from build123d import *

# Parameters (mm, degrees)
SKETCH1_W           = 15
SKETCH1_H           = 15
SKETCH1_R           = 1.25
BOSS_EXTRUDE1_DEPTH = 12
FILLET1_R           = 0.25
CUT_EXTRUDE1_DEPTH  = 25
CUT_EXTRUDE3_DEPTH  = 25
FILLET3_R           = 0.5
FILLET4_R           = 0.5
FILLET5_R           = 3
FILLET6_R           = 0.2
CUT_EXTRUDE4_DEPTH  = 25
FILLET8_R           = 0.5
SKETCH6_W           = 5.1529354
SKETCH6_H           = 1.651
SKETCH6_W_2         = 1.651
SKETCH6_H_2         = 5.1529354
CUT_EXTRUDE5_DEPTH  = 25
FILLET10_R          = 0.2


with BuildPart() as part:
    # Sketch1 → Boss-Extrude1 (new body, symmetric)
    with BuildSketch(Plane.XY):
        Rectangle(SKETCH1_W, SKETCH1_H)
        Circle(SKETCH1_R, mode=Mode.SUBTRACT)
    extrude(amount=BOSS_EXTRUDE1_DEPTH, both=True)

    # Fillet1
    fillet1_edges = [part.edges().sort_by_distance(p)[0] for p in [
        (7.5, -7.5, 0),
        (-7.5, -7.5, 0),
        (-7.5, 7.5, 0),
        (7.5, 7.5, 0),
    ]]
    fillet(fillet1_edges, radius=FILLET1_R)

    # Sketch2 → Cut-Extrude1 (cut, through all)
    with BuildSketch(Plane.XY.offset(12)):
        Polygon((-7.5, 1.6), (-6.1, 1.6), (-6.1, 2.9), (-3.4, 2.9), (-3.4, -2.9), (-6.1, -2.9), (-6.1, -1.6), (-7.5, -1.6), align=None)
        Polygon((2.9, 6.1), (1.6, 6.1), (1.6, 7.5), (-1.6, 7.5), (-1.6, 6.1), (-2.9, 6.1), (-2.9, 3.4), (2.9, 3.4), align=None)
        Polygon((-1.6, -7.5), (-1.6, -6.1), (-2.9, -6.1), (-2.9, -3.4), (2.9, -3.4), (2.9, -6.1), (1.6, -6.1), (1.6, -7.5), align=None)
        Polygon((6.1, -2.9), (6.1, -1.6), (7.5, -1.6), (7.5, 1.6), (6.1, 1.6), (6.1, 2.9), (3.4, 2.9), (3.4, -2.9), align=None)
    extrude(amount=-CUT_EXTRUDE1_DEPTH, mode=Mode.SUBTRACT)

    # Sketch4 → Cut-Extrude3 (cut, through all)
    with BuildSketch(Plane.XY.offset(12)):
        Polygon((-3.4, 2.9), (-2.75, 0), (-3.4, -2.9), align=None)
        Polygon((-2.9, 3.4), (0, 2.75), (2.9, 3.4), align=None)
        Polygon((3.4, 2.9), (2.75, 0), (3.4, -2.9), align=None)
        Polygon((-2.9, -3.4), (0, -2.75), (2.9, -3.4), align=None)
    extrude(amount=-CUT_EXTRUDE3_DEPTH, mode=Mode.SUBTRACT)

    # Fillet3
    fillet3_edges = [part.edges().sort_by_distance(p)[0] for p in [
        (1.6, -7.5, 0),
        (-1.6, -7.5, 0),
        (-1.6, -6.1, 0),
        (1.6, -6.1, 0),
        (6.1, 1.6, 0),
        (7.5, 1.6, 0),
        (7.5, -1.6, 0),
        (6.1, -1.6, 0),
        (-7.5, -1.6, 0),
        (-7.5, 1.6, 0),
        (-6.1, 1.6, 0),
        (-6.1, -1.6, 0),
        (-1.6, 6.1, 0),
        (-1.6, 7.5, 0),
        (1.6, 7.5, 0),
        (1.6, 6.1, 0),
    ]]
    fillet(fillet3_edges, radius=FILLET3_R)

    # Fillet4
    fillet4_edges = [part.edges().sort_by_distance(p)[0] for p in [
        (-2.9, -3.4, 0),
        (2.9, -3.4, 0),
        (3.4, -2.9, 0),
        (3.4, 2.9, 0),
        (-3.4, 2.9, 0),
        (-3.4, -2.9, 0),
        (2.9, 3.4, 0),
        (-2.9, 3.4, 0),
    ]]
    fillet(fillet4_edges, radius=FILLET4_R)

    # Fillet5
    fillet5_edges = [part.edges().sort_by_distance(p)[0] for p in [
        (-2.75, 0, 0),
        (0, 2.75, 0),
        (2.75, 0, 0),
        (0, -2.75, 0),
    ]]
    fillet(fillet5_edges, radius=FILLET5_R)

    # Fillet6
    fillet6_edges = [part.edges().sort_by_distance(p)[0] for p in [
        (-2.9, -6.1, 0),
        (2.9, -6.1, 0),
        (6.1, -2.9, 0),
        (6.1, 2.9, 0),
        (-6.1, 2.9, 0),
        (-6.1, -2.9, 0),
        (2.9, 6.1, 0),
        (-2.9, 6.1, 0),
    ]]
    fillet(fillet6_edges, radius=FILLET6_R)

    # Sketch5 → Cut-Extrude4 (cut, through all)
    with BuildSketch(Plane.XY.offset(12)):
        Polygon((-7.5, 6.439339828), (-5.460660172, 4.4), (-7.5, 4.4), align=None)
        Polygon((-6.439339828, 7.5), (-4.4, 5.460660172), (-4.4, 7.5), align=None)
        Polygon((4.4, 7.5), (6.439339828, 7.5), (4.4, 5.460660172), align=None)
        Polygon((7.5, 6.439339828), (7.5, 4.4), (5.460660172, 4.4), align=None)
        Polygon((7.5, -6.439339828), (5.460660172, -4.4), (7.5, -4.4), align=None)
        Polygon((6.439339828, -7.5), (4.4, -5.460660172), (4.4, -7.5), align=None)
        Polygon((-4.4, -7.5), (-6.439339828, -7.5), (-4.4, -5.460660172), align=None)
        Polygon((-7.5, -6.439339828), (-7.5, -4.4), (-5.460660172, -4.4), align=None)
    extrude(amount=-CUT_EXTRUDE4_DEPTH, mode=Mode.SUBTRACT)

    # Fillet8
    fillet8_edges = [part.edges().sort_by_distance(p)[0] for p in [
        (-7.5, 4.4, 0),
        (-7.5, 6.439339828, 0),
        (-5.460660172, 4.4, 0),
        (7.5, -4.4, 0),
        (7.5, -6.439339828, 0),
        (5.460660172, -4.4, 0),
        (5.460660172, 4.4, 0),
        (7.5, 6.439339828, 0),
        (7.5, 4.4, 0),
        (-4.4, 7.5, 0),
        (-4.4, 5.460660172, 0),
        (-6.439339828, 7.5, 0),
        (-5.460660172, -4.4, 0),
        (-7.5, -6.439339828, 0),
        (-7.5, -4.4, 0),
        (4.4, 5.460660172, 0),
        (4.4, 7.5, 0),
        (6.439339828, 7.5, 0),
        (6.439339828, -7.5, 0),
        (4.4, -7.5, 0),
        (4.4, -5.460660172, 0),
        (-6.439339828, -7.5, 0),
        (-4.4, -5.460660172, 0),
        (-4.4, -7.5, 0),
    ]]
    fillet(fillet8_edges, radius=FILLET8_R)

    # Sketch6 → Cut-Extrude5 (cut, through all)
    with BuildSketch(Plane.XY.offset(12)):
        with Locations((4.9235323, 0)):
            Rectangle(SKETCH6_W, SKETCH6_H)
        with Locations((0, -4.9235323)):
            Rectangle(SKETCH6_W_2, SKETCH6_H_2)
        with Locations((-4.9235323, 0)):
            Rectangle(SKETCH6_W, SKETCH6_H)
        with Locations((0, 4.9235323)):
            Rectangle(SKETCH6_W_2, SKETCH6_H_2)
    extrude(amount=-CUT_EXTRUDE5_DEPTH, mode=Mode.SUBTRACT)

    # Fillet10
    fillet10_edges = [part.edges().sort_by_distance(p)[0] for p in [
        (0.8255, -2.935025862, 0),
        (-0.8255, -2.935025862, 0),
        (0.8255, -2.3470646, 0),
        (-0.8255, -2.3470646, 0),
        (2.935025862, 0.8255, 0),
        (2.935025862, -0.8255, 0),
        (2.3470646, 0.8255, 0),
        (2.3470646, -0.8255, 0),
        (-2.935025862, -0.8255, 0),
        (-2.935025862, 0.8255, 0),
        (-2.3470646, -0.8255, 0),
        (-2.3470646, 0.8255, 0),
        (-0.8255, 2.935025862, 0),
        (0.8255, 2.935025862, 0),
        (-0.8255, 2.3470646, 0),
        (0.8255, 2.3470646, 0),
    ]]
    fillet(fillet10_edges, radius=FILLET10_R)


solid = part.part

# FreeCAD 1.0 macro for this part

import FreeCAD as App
import Part
import Sketcher


def edges_at(feature, points):
    """Names of the edges that pass closest to the given points."""
    edges = feature.Shape.Edges
    near = lambda p: min(range(len(edges)), key=lambda i: edges[i].distToShape(Part.Vertex(*p))[0])
    return sorted({f"Edge{near(p) + 1}" for p in points})

doc = App.newDocument("Part")
body = doc.addObject("PartDesign::Body", "Body")

# Sketch on XY plane
sketch1 = body.newObject("Sketcher::SketchObject", "Sketch")
sketch1.AttachmentSupport = (doc.getObject("XY_Plane"), [""])
sketch1.MapMode = "FlatFace"
sketch1.addGeometry([
    Part.LineSegment(App.Vector(-7.5, 7.5, 0), App.Vector(-7.5, -7.5, 0)),  # 0
    Part.LineSegment(App.Vector(-7.5, -7.5, 0), App.Vector(7.5, -7.5, 0)),  # 1
    Part.LineSegment(App.Vector(7.5, -7.5, 0), App.Vector(7.5, 7.5, 0)),  # 2
    Part.LineSegment(App.Vector(7.5, 7.5, 0), App.Vector(-7.5, 7.5, 0)),  # 3
    Part.Circle(App.Vector(0, 0, 0), App.Vector(0, 0, 1), 1.2),  # 4
], False)
sketch1.addConstraint([
    Sketcher.Constraint("Coincident", 0, 2, 1, 1),
    Sketcher.Constraint("Coincident", 1, 2, 2, 1),
    Sketcher.Constraint("Coincident", 2, 2, 3, 1),
    Sketcher.Constraint("Coincident", 3, 2, 0, 1),
    Sketcher.Constraint("Vertical", 0),
    Sketcher.Constraint("Horizontal", 1),
    Sketcher.Constraint("Vertical", 2),
    Sketcher.Constraint("Horizontal", 3),
    Sketcher.Constraint("Coincident", 4, 3, -1, 1),
    Sketcher.Constraint("Symmetric", 0, 2, 2, 2, -1, 1),
    Sketcher.Constraint("Equal", 3, 0),
    Sketcher.Constraint("Diameter", 4, 2.5),
    Sketcher.Constraint("DistanceX", 1, 1, 1, 2, 15.0),
])
pad1 = body.newObject("PartDesign::Pad", "Pad")
pad1.Profile = sketch1
pad1.Length = 24
pad1.Midplane = True
doc.recompute()

fillet = body.newObject("PartDesign::Fillet", "Fillet")
fillet.Base = (pad1, edges_at(pad1, [
    (7.5, -7.5, 0),
    (-7.5, -7.5, 0),
    (-7.5, 7.5, 0),
    (7.5, 7.5, 0),
]))
fillet.Radius = 0.25

# Sketch on XY plane
sketch2 = body.newObject("Sketcher::SketchObject", "Sketch001")
sketch2.AttachmentSupport = (doc.getObject("XY_Plane"), [""])
sketch2.MapMode = "FlatFace"
sketch2.AttachmentOffset = App.Placement(App.Vector(0, 0, 12), App.Rotation())
sketch2.addGeometry([
    Part.LineSegment(App.Vector(-6.1, 1.6, 0), App.Vector(-7.5, 1.6, 0)),  # 0
    Part.LineSegment(App.Vector(-7.5, 1.6, 0), App.Vector(-7.5, -1.6, 0)),  # 1
    Part.LineSegment(App.Vector(-7.5, -1.6, 0), App.Vector(-6.1, -1.6, 0)),  # 2
    Part.LineSegment(App.Vector(-6.1, -1.6, 0), App.Vector(-6.1, -2.9, 0)),  # 3
    Part.LineSegment(App.Vector(-6.1, -2.9, 0), App.Vector(-3.4, -2.9, 0)),  # 4
    Part.LineSegment(App.Vector(-3.4, -2.9, 0), App.Vector(-3.4, 2.9, 0)),  # 5
    Part.LineSegment(App.Vector(-3.4, 2.9, 0), App.Vector(-6.1, 2.9, 0)),  # 6
    Part.LineSegment(App.Vector(-6.1, 2.9, 0), App.Vector(-6.1, 1.6, 0)),  # 7
    Part.LineSegment(App.Vector(2.9, 6.1, 0), App.Vector(1.6, 6.1, 0)),  # 8
    Part.LineSegment(App.Vector(1.6, 6.1, 0), App.Vector(1.6, 7.5, 0)),  # 9
    Part.LineSegment(App.Vector(1.6, 7.5, 0), App.Vector(-1.6, 7.5, 0)),  # 10
    Part.LineSegment(App.Vector(-1.6, 7.5, 0), App.Vector(-1.6, 6.1, 0)),  # 11
    Part.LineSegment(App.Vector(-1.6, 6.1, 0), App.Vector(-2.9, 6.1, 0)),  # 12
    Part.LineSegment(App.Vector(-2.9, 6.1, 0), App.Vector(-2.9, 3.4, 0)),  # 13
    Part.LineSegment(App.Vector(-2.9, 3.4, 0), App.Vector(2.9, 3.4, 0)),  # 14
    Part.LineSegment(App.Vector(2.9, 3.4, 0), App.Vector(2.9, 6.1, 0)),  # 15
    Part.LineSegment(App.Vector(-1.6, -6.1, 0), App.Vector(-1.6, -7.5, 0)),  # 16
    Part.LineSegment(App.Vector(-1.6, -7.5, 0), App.Vector(1.6, -7.5, 0)),  # 17
    Part.LineSegment(App.Vector(1.6, -7.5, 0), App.Vector(1.6, -6.1, 0)),  # 18
    Part.LineSegment(App.Vector(1.6, -6.1, 0), App.Vector(2.9, -6.1, 0)),  # 19
    Part.LineSegment(App.Vector(2.9, -6.1, 0), App.Vector(2.9, -3.4, 0)),  # 20
    Part.LineSegment(App.Vector(2.9, -3.4, 0), App.Vector(-2.9, -3.4, 0)),  # 21
    Part.LineSegment(App.Vector(-2.9, -3.4, 0), App.Vector(-2.9, -6.1, 0)),  # 22
    Part.LineSegment(App.Vector(-2.9, -6.1, 0), App.Vector(-1.6, -6.1, 0)),  # 23
    Part.LineSegment(App.Vector(6.1, -2.9, 0), App.Vector(6.1, -1.6, 0)),  # 24
    Part.LineSegment(App.Vector(6.1, -1.6, 0), App.Vector(7.5, -1.6, 0)),  # 25
    Part.LineSegment(App.Vector(7.5, -1.6, 0), App.Vector(7.5, 1.6, 0)),  # 26
    Part.LineSegment(App.Vector(7.5, 1.6, 0), App.Vector(6.1, 1.6, 0)),  # 27
    Part.LineSegment(App.Vector(6.1, 1.6, 0), App.Vector(6.1, 2.9, 0)),  # 28
    Part.LineSegment(App.Vector(6.1, 2.9, 0), App.Vector(3.4, 2.9, 0)),  # 29
    Part.LineSegment(App.Vector(3.4, 2.9, 0), App.Vector(3.4, -2.9, 0)),  # 30
    Part.LineSegment(App.Vector(3.4, -2.9, 0), App.Vector(6.1, -2.9, 0)),  # 31
], False)
sketch2.addConstraint([
    Sketcher.Constraint("Coincident", 0, 2, 1, 1),
    Sketcher.Constraint("Coincident", 1, 2, 2, 1),
    Sketcher.Constraint("Coincident", 2, 2, 3, 1),
    Sketcher.Constraint("Coincident", 3, 2, 4, 1),
    Sketcher.Constraint("Coincident", 4, 2, 5, 1),
    Sketcher.Constraint("Coincident", 5, 2, 6, 1),
    Sketcher.Constraint("Coincident", 6, 2, 7, 1),
    Sketcher.Constraint("Coincident", 7, 2, 0, 1),
    Sketcher.Constraint("Coincident", 8, 2, 9, 1),
    Sketcher.Constraint("Coincident", 9, 2, 10, 1),
    Sketcher.Constraint("Coincident", 10, 2, 11, 1),
    Sketcher.Constraint("Coincident", 11, 2, 12, 1),
    Sketcher.Constraint("Coincident", 12, 2, 13, 1),
    Sketcher.Constraint("Coincident", 13, 2, 14, 1),
    Sketcher.Constraint("Coincident", 14, 2, 15, 1),
    Sketcher.Constraint("Coincident", 15, 2, 8, 1),
    Sketcher.Constraint("Coincident", 16, 2, 17, 1),
    Sketcher.Constraint("Coincident", 17, 2, 18, 1),
    Sketcher.Constraint("Coincident", 18, 2, 19, 1),
    Sketcher.Constraint("Coincident", 19, 2, 20, 1),
    Sketcher.Constraint("Coincident", 20, 2, 21, 1),
    Sketcher.Constraint("Coincident", 21, 2, 22, 1),
    Sketcher.Constraint("Coincident", 22, 2, 23, 1),
    Sketcher.Constraint("Coincident", 23, 2, 16, 1),
    Sketcher.Constraint("Coincident", 24, 2, 25, 1),
    Sketcher.Constraint("Coincident", 25, 2, 26, 1),
    Sketcher.Constraint("Coincident", 26, 2, 27, 1),
    Sketcher.Constraint("Coincident", 27, 2, 28, 1),
    Sketcher.Constraint("Coincident", 28, 2, 29, 1),
    Sketcher.Constraint("Coincident", 29, 2, 30, 1),
    Sketcher.Constraint("Coincident", 30, 2, 31, 1),
    Sketcher.Constraint("Coincident", 31, 2, 24, 1),
    Sketcher.Constraint("Horizontal", 0),
    Sketcher.Constraint("Vertical", 1),
    Sketcher.Constraint("Horizontal", 2),
    Sketcher.Constraint("Vertical", 3),
    Sketcher.Constraint("Horizontal", 4),
    Sketcher.Constraint("Vertical", 5),
    Sketcher.Constraint("Horizontal", 6),
    Sketcher.Constraint("Vertical", 7),
    Sketcher.Constraint("Horizontal", 8),
    Sketcher.Constraint("Vertical", 9),
    Sketcher.Constraint("Horizontal", 10),
    Sketcher.Constraint("Vertical", 11),
    Sketcher.Constraint("Horizontal", 12),
    Sketcher.Constraint("Vertical", 13),
    Sketcher.Constraint("Horizontal", 14),
    Sketcher.Constraint("Vertical", 15),
    Sketcher.Constraint("Vertical", 16),
    Sketcher.Constraint("Horizontal", 17),
    Sketcher.Constraint("Vertical", 18),
    Sketcher.Constraint("Horizontal", 19),
    Sketcher.Constraint("Vertical", 20),
    Sketcher.Constraint("Horizontal", 21),
    Sketcher.Constraint("Vertical", 22),
    Sketcher.Constraint("Horizontal", 23),
    Sketcher.Constraint("Vertical", 24),
    Sketcher.Constraint("Horizontal", 25),
    Sketcher.Constraint("Vertical", 26),
    Sketcher.Constraint("Horizontal", 27),
    Sketcher.Constraint("Vertical", 28),
    Sketcher.Constraint("Horizontal", 29),
    Sketcher.Constraint("Vertical", 30),
    Sketcher.Constraint("Horizontal", 31),
    Sketcher.Constraint("Symmetric", 9, 2, 16, 2, -1, 1),
    Sketcher.Constraint("Symmetric", 11, 2, 18, 2, -1, 1),
    Sketcher.Constraint("Symmetric", 13, 2, 20, 2, -1, 1),
    Sketcher.Constraint("Symmetric", 15, 2, 22, 2, -1, 1),
    Sketcher.Constraint("Symmetric", 7, 2, 24, 2, -1, 1),
    Sketcher.Constraint("Symmetric", 1, 2, 26, 2, -1, 1),
    Sketcher.Constraint("Symmetric", 3, 2, 28, 2, -1, 1),
    Sketcher.Constraint("Symmetric", 5, 2, 30, 2, -1, 1),
    Sketcher.Constraint("Symmetric", 8, 2, 11, 2, -2),
    Sketcher.Constraint("Symmetric", 2, 2, 24, 2, -2),
    Sketcher.Constraint("Horizontal", 6, 2, 28, 2),
    Sketcher.Constraint("Vertical", 15, 2, 19, 2),
    Sketcher.Constraint("Equal", 17, 1),
    Sketcher.Constraint("Equal", 23, 3),
    Sketcher.Constraint("Equal", 27, 9),
    Sketcher.Constraint("Equal", 31, 13),
    Sketcher.Constraint("DistanceX", 0, 2, 0, 1, 1.4),
    Sketcher.Constraint("DistanceX", 4, 1, 4, 2, 2.7),
    Sketcher.Constraint("DistanceX", 8, 2, 8, 1, 1.3),
    Sketcher.Constraint("DistanceX", 10, 2, 10, 1, 3.2),
    Sketcher.Constraint("DistanceX", 5, 2, 8, 2, 5.0),
    Sketcher.Constraint("DistanceY", 4, 2, 8, 2, 9.0),
])
pocket1 = body.newObject("PartDesign::Pocket", "Pocket")
pocket1.Profile = sketch2
pocket1.Type = "ThroughAll"

# Sketch on XY plane
sketch3 = body.newObject("Sketcher::SketchObject", "Sketch002")
sketch3.AttachmentSupport = (doc.getObject("XY_Plane"), [""])
sketch3.MapMode = "FlatFace"
sketch3.AttachmentOffset = App.Placement(App.Vector(0, 0, 12), App.Rotation())
sketch3.addGeometry([
    Part.LineSegment(App.Vector(-2.8, 0, 0), App.Vector(-3.4, 2.9, 0)),  # 0
    Part.LineSegment(App.Vector(-3.4, 2.9, 0), App.Vector(-3.4, -2.9, 0)),  # 1
    Part.LineSegment(App.Vector(-3.4, -2.9, 0), App.Vector(-2.8, 0, 0)),  # 2
    Part.LineSegment(App.Vector(-2.9, 3.4, 0), App.Vector(0, 2.8, 0)),  # 3
    Part.LineSegment(App.Vector(0, 2.8, 0), App.Vector(2.9, 3.4, 0)),  # 4
    Part.LineSegment(App.Vector(2.9, 3.4, 0), App.Vector(-2.9, 3.4, 0)),  # 5
    Part.LineSegment(App.Vector(3.4, 2.9, 0), App.Vector(2.8, 0, 0)),  # 6
    Part.LineSegment(App.Vector(2.8, 0, 0), App.Vector(3.4, -2.9, 0)),  # 7
    Part.LineSegment(App.Vector(3.4, -2.9, 0), App.Vector(3.4, 2.9, 0)),  # 8
    Part.LineSegment(App.Vector(0, -2.8, 0), App.Vector(-2.9, -3.4, 0)),  # 9
    Part.LineSegment(App.Vector(-2.9, -3.4, 0), App.Vector(2.9, -3.4, 0)),  # 10
    Part.LineSegment(App.Vector(2.9, -3.4, 0), App.Vector(0, -2.8, 0)),  # 11
], False)
sketch3.addConstraint([
    Sketcher.Constraint("Coincident", 0, 2, 1, 1),
    Sketcher.Constraint("Coincident", 1, 2, 2, 1),
    Sketcher.Constraint("Coincident", 2, 2, 0, 1),
    Sketcher.Constraint("Coincident", 3, 2, 4, 1),
    Sketcher.Constraint("Coincident", 4, 2, 5, 1),
    Sketcher.Constraint("Coincident", 5, 2, 3, 1),
    Sketcher.Constraint("Coincident", 6, 2, 7, 1),
    Sketcher.Constraint("Coincident", 7, 2, 8, 1),
    Sketcher.Constraint("Coincident", 8, 2, 6, 1),
    Sketcher.Constraint("Coincident", 9, 2, 10, 1),
    Sketcher.Constraint("Coincident", 10, 2, 11, 1),
    Sketcher.Constraint("Coincident", 11, 2, 9, 1),
    Sketcher.Constraint("Vertical", 1),
    Sketcher.Constraint("Horizontal", 5),
    Sketcher.Constraint("Vertical", 8),
    Sketcher.Constraint("Horizontal", 10),
    Sketcher.Constraint("Symmetric", 2, 2, 6, 2, -1, 1),
    Sketcher.Constraint("Symmetric", 0, 2, 7, 2, -1, 1),
    Sketcher.Constraint("Symmetric", 4, 2, 9, 2, -1, 1),
    Sketcher.Constraint("Symmetric", 3, 2, 11, 2, -1, 1),
    Sketcher.Constraint("PointOnObject", 2, 2, -1),
    Sketcher.Constraint("PointOnObject", 3, 2, -2),
    Sketcher.Constraint("Perpendicular", 2, 3),
    Sketcher.Constraint("Perpendicular", 0, 4),
    Sketcher.Constraint("Perpendicular", 3, 6),
    Sketcher.Constraint("Perpendicular", 6, 11),
    Sketcher.Constraint("Horizontal", 1, 2, 7, 2),
    Sketcher.Constraint("Equal", 10, 1),
    Sketcher.Constraint("DistanceX", 5, 2, 5, 1, 5.8),
    Sketcher.Constraint("DistanceX", 0, 2, -1, 1, 3.4),
    Sketcher.Constraint("DistanceY", -1, 1, 4, 2, 3.4),
    Sketcher.Constraint("DistanceX", 2, 2, 6, 2, 5.5),
])
pocket2 = body.newObject("PartDesign::Pocket", "Pocket001")
pocket2.Profile = sketch3
pocket2.Type = "ThroughAll"
doc.recompute()

fillet2 = body.newObject("PartDesign::Fillet", "Fillet001")
fillet2.Base = (pocket2, edges_at(pocket2, [
    (1.6, -7.5, 0),
    (-1.6, -7.5, 0),
    (-1.6, -6.1, 0),
    (1.6, -6.1, 0),
    (6.1, 1.6, 0),
    (7.5, 1.6, 0),
    (7.5, -1.6, 0),
    (6.1, -1.6, 0),
    (-7.5, -1.6, 0),
    (-7.5, 1.6, 0),
    (-6.1, 1.6, 0),
    (-6.1, -1.6, 0),
    (-1.6, 6.1, 0),
    (-1.6, 7.5, 0),
    (1.6, 7.5, 0),
    (1.6, 6.1, 0),
]))
fillet2.Radius = 0.5
doc.recompute()

fillet3 = body.newObject("PartDesign::Fillet", "Fillet002")
fillet3.Base = (fillet2, edges_at(fillet2, [
    (-2.9, -3.4, 0),
    (2.9, -3.4, 0),
    (3.4, -2.9, 0),
    (3.4, 2.9, 0),
    (-3.4, 2.9, 0),
    (-3.4, -2.9, 0),
    (2.9, 3.4, 0),
    (-2.9, 3.4, 0),
]))
fillet3.Radius = 0.5
doc.recompute()

fillet4 = body.newObject("PartDesign::Fillet", "Fillet003")
fillet4.Base = (fillet3, edges_at(fillet3, [
    (-2.75, 0, 0),
    (0, 2.75, 0),
    (2.75, 0, 0),
    (0, -2.75, 0),
]))
fillet4.Radius = 3
doc.recompute()

fillet5 = body.newObject("PartDesign::Fillet", "Fillet004")
fillet5.Base = (fillet4, edges_at(fillet4, [
    (-2.9, -6.1, 0),
    (2.9, -6.1, 0),
    (6.1, -2.9, 0),
    (6.1, 2.9, 0),
    (-6.1, 2.9, 0),
    (-6.1, -2.9, 0),
    (2.9, 6.1, 0),
    (-2.9, 6.1, 0),
]))
fillet5.Radius = 0.2

# Sketch on XY plane
sketch4 = body.newObject("Sketcher::SketchObject", "Sketch003")
sketch4.AttachmentSupport = (doc.getObject("XY_Plane"), [""])
sketch4.MapMode = "FlatFace"
sketch4.AttachmentOffset = App.Placement(App.Vector(0, 0, 12), App.Rotation())
sketch4.addGeometry([
    Part.LineSegment(App.Vector(-5.5, 4.4, 0), App.Vector(-7.5, 6.4, 0)),  # 0
    Part.LineSegment(App.Vector(-7.5, 6.4, 0), App.Vector(-7.5, 4.4, 0)),  # 1
    Part.LineSegment(App.Vector(-7.5, 4.4, 0), App.Vector(-5.5, 4.4, 0)),  # 2
    Part.LineSegment(App.Vector(-6.4, 7.5, 0), App.Vector(-4.4, 5.5, 0)),  # 3
    Part.LineSegment(App.Vector(-4.4, 5.5, 0), App.Vector(-4.4, 7.5, 0)),  # 4
    Part.LineSegment(App.Vector(-4.4, 7.5, 0), App.Vector(-6.4, 7.5, 0)),  # 5
    Part.LineSegment(App.Vector(6.4, 7.5, 0), App.Vector(4.4, 7.5, 0)),  # 6
    Part.LineSegment(App.Vector(4.4, 7.5, 0), App.Vector(4.4, 5.5, 0)),  # 7
    Part.LineSegment(App.Vector(4.4, 5.5, 0), App.Vector(6.4, 7.5, 0)),  # 8
    Part.LineSegment(App.Vector(7.5, 4.4, 0), App.Vector(7.5, 6.4, 0)),  # 9
    Part.LineSegment(App.Vector(7.5, 6.4, 0), App.Vector(5.5, 4.4, 0)),  # 10
    Part.LineSegment(App.Vector(5.5, 4.4, 0), App.Vector(7.5, 4.4, 0)),  # 11
    Part.LineSegment(App.Vector(5.5, -4.4, 0), App.Vector(7.5, -6.4, 0)),  # 12
    Part.LineSegment(App.Vector(7.5, -6.4, 0), App.Vector(7.5, -4.4, 0)),  # 13
    Part.LineSegment(App.Vector(7.5, -4.4, 0), App.Vector(5.5, -4.4, 0)),  # 14
    Part.LineSegment(App.Vector(6.4, -7.5, 0), App.Vector(4.4, -5.5, 0)),  # 15
    Part.LineSegment(App.Vector(4.4, -5.5, 0), App.Vector(4.4, -7.5, 0)),  # 16
    Part.LineSegment(App.Vector(4.4, -7.5, 0), App.Vector(6.4, -7.5, 0)),  # 17
    Part.LineSegment(App.Vector(-6.4, -7.5, 0), App.Vector(-4.4, -7.5, 0)),  # 18
    Part.LineSegment(App.Vector(-4.4, -7.5, 0), App.Vector(-4.4, -5.5, 0)),  # 19
    Part.LineSegment(App.Vector(-4.4, -5.5, 0), App.Vector(-6.4, -7.5, 0)),  # 20
    Part.LineSegment(App.Vector(-7.5, -4.4, 0), App.Vector(-7.5, -6.4, 0)),  # 21
    Part.LineSegment(App.Vector(-7.5, -6.4, 0), App.Vector(-5.5, -4.4, 0)),  # 22
    Part.LineSegment(App.Vector(-5.5, -4.4, 0), App.Vector(-7.5, -4.4, 0)),  # 23
], False)
sketch4.addConstraint([
    Sketcher.Constraint("Coincident", 0, 2, 1, 1),
    Sketcher.Constraint("Coincident", 1, 2, 2, 1),
    Sketcher.Constraint("Coincident", 2, 2, 0, 1),
    Sketcher.Constraint("Coincident", 3, 2, 4, 1),
    Sketcher.Constraint("Coincident", 4, 2, 5, 1),
    Sketcher.Constraint("Coincident", 5, 2, 3, 1),
    Sketcher.Constraint("Coincident", 6, 2, 7, 1),
    Sketcher.Constraint("Coincident", 7, 2, 8, 1),
    Sketcher.Constraint("Coincident", 8, 2, 6, 1),
    Sketcher.Constraint("Coincident", 9, 2, 10, 1),
    Sketcher.Constraint("Coincident", 10, 2, 11, 1),
    Sketcher.Constraint("Coincident", 11, 2, 9, 1),
    Sketcher.Constraint("Coincident", 12, 2, 13, 1),
    Sketcher.Constraint("Coincident", 13, 2, 14, 1),
    Sketcher.Constraint("Coincident", 14, 2, 12, 1),
    Sketcher.Constraint("Coincident", 15, 2, 16, 1),
    Sketcher.Constraint("Coincident", 16, 2, 17, 1),
    Sketcher.Constraint("Coincident", 17, 2, 15, 1),
    Sketcher.Constraint("Coincident", 18, 2, 19, 1),
    Sketcher.Constraint("Coincident", 19, 2, 20, 1),
    Sketcher.Constraint("Coincident", 20, 2, 18, 1),
    Sketcher.Constraint("Coincident", 21, 2, 22, 1),
    Sketcher.Constraint("Coincident", 22, 2, 23, 1),
    Sketcher.Constraint("Coincident", 23, 2, 21, 1),
    Sketcher.Constraint("Vertical", 1),
    Sketcher.Constraint("Horizontal", 2),
    Sketcher.Constraint("Vertical", 4),
    Sketcher.Constraint("Horizontal", 5),
    Sketcher.Constraint("Horizontal", 6),
    Sketcher.Constraint("Vertical", 7),
    Sketcher.Constraint("Vertical", 9),
    Sketcher.Constraint("Horizontal", 11),
    Sketcher.Constraint("Vertical", 13),
    Sketcher.Constraint("Horizontal", 14),
    Sketcher.Constraint("Vertical", 16),
    Sketcher.Constraint("Horizontal", 17),
    Sketcher.Constraint("Horizontal", 18),
    Sketcher.Constraint("Vertical", 19),
    Sketcher.Constraint("Vertical", 21),
    Sketcher.Constraint("Horizontal", 23),
    Sketcher.Constraint("Symmetric", 0, 2, 12, 2, -1, 1),
    Sketcher.Constraint("Symmetric", 2, 2, 14, 2, -1, 1),
    Sketcher.Constraint("Symmetric", 3, 2, 15, 2, -1, 1),
    Sketcher.Constraint("Symmetric", 5, 2, 17, 2, -1, 1),
    Sketcher.Constraint("Symmetric", 6, 2, 18, 2, -1, 1),
    Sketcher.Constraint("Symmetric", 9, 2, 21, 2, -1, 1),
    Sketcher.Constraint("Symmetric", 10, 2, 22, 2, -1, 1),
    Sketcher.Constraint("Symmetric", 4, 2, 6, 2, -2),
    Sketcher.Constraint("Symmetric", 0, 2, 9, 2, -2),
    Sketcher.Constraint("Symmetric", 2, 2, 10, 2, -2),
    Sketcher.Constraint("Parallel", 0, 3),
    Sketcher.Constraint("Perpendicular", 3, 8),
    Sketcher.Constraint("Parallel", 8, 10),
    Sketcher.Constraint("Perpendicular", 15, 20),
    Sketcher.Constraint("Horizontal", 3, 2, 7, 2),
    Sketcher.Constraint("Horizontal", 15, 2, 19, 2),
    Sketcher.Constraint("Equal", 2, 5),
    Sketcher.Constraint("DistanceX", 0, 2, -1, 1, 7.5),
    Sketcher.Constraint("DistanceY", -1, 1, 1, 2, 4.4),
    Sketcher.Constraint("DistanceX", 3, 2, -1, 1, 4.4),
    Sketcher.Constraint("DistanceY", -1, 1, 4, 2, 7.5),
    Sketcher.Constraint("DistanceX", 2, 1, 2, 2, 2.03934),
])
pocket3 = body.newObject("PartDesign::Pocket", "Pocket002")
pocket3.Profile = sketch4
pocket3.Type = "ThroughAll"
doc.recompute()

fillet6 = body.newObject("PartDesign::Fillet", "Fillet005")
fillet6.Base = (pocket3, edges_at(pocket3, [
    (-7.5, 4.4, 0),
    (-7.5, 6.439, 0),
    (-5.461, 4.4, 0),
    (7.5, -4.4, 0),
    (7.5, -6.439, 0),
    (5.461, -4.4, 0),
    (5.461, 4.4, 0),
    (7.5, 6.439, 0),
    (7.5, 4.4, 0),
    (-4.4, 7.5, 0),
    (-4.4, 5.461, 0),
    (-6.439, 7.5, 0),
    (-5.461, -4.4, 0),
    (-7.5, -6.439, 0),
    (-7.5, -4.4, 0),
    (4.4, 5.461, 0),
    (4.4, 7.5, 0),
    (6.439, 7.5, 0),
    (6.439, -7.5, 0),
    (4.4, -7.5, 0),
    (4.4, -5.461, 0),
    (-6.439, -7.5, 0),
    (-4.4, -5.461, 0),
    (-4.4, -7.5, 0),
]))
fillet6.Radius = 0.5

# Sketch on XY plane
sketch5 = body.newObject("Sketcher::SketchObject", "Sketch004")
sketch5.AttachmentSupport = (doc.getObject("XY_Plane"), [""])
sketch5.MapMode = "FlatFace"
sketch5.AttachmentOffset = App.Placement(App.Vector(0, 0, 12), App.Rotation())
sketch5.addGeometry([
    Part.LineSegment(App.Vector(2.3, 0.8, 0), App.Vector(2.3, -0.8, 0)),  # 0
    Part.LineSegment(App.Vector(2.3, -0.8, 0), App.Vector(7.5, -0.8, 0)),  # 1
    Part.LineSegment(App.Vector(7.5, -0.8, 0), App.Vector(7.5, 0.8, 0)),  # 2
    Part.LineSegment(App.Vector(7.5, 0.8, 0), App.Vector(2.3, 0.8, 0)),  # 3
    Part.LineSegment(App.Vector(-0.8, -2.3, 0), App.Vector(-0.8, -7.5, 0)),  # 4
    Part.LineSegment(App.Vector(-0.8, -7.5, 0), App.Vector(0.8, -7.5, 0)),  # 5
    Part.LineSegment(App.Vector(0.8, -7.5, 0), App.Vector(0.8, -2.3, 0)),  # 6
    Part.LineSegment(App.Vector(0.8, -2.3, 0), App.Vector(-0.8, -2.3, 0)),  # 7
    Part.LineSegment(App.Vector(-7.5, 0.8, 0), App.Vector(-7.5, -0.8, 0)),  # 8
    Part.LineSegment(App.Vector(-7.5, -0.8, 0), App.Vector(-2.3, -0.8, 0)),  # 9
    Part.LineSegment(App.Vector(-2.3, -0.8, 0), App.Vector(-2.3, 0.8, 0)),  # 10
    Part.LineSegment(App.Vector(-2.3, 0.8, 0), App.Vector(-7.5, 0.8, 0)),  # 11
    Part.LineSegment(App.Vector(-0.8, 7.5, 0), App.Vector(-0.8, 2.3, 0)),  # 12
    Part.LineSegment(App.Vector(-0.8, 2.3, 0), App.Vector(0.8, 2.3, 0)),  # 13
    Part.LineSegment(App.Vector(0.8, 2.3, 0), App.Vector(0.8, 7.5, 0)),  # 14
    Part.LineSegment(App.Vector(0.8, 7.5, 0), App.Vector(-0.8, 7.5, 0)),  # 15
], False)
sketch5.addConstraint([
    Sketcher.Constraint("Coincident", 0, 2, 1, 1),
    Sketcher.Constraint("Coincident", 1, 2, 2, 1),
    Sketcher.Constraint("Coincident", 2, 2, 3, 1),
    Sketcher.Constraint("Coincident", 3, 2, 0, 1),
    Sketcher.Constraint("Coincident", 4, 2, 5, 1),
    Sketcher.Constraint("Coincident", 5, 2, 6, 1),
    Sketcher.Constraint("Coincident", 6, 2, 7, 1),
    Sketcher.Constraint("Coincident", 7, 2, 4, 1),
    Sketcher.Constraint("Coincident", 8, 2, 9, 1),
    Sketcher.Constraint("Coincident", 9, 2, 10, 1),
    Sketcher.Constraint("Coincident", 10, 2, 11, 1),
    Sketcher.Constraint("Coincident", 11, 2, 8, 1),
    Sketcher.Constraint("Coincident", 12, 2, 13, 1),
    Sketcher.Constraint("Coincident", 13, 2, 14, 1),
    Sketcher.Constraint("Coincident", 14, 2, 15, 1),
    Sketcher.Constraint("Coincident", 15, 2, 12, 1),
    Sketcher.Constraint("Vertical", 0),
    Sketcher.Constraint("Horizontal", 1),
    Sketcher.Constraint("Vertical", 2),
    Sketcher.Constraint("Horizontal", 3),
    Sketcher.Constraint("Vertical", 4),
    Sketcher.Constraint("Horizontal", 5),
    Sketcher.Constraint("Vertical", 6),
    Sketcher.Constraint("Horizontal", 7),
    Sketcher.Constraint("Vertical", 8),
    Sketcher.Constraint("Horizontal", 9),
    Sketcher.Constraint("Vertical", 10),
    Sketcher.Constraint("Horizontal", 11),
    Sketcher.Constraint("Vertical", 12),
    Sketcher.Constraint("Horizontal", 13),
    Sketcher.Constraint("Vertical", 14),
    Sketcher.Constraint("Horizontal", 15),
    Sketcher.Constraint("Symmetric", 2, 2, 8, 2, -1, 1),
    Sketcher.Constraint("Symmetric", 0, 2, 10, 2, -1, 1),
    Sketcher.Constraint("Symmetric", 6, 2, 12, 2, -1, 1),
    Sketcher.Constraint("Symmetric", 4, 2, 14, 2, -1, 1),
    Sketcher.Constraint("Horizontal", 1, 2, 8, 2),
    Sketcher.Constraint("Vertical", 7, 2, 12, 2),
    Sketcher.Constraint("Equal", 15, 0),
    Sketcher.Constraint("Equal", 11, 4),
    Sketcher.Constraint("DistanceX", -1, 1, 1, 2, 7.5),
    Sketcher.Constraint("DistanceY", 4, 2, -1, 1, 7.5),
    Sketcher.Constraint("DistanceX", 5, 1, 5, 2, 1.651),
    Sketcher.Constraint("DistanceX", 1, 1, 1, 2, 5.152935),
])
pocket4 = body.newObject("PartDesign::Pocket", "Pocket003")
pocket4.Profile = sketch5
pocket4.Type = "ThroughAll"
doc.recompute()

fillet7 = body.newObject("PartDesign::Fillet", "Fillet006")
fillet7.Base = (pocket4, edges_at(pocket4, [
    (0.826, -2.935, 0),
    (-0.826, -2.935, 0),
    (0.826, -2.347, 0),
    (-0.826, -2.347, 0),
    (2.935, 0.826, 0),
    (2.935, -0.826, 0),
    (2.347, 0.826, 0),
    (2.347, -0.826, 0),
    (-2.935, -0.826, 0),
    (-2.935, 0.826, 0),
    (-2.347, -0.826, 0),
    (-2.347, 0.826, 0),
    (-0.826, 2.935, 0),
    (0.826, 2.935, 0),
    (-0.826, 2.347, 0),
    (0.826, 2.347, 0),
]))
fillet7.Radius = 0.2

doc.recompute()
